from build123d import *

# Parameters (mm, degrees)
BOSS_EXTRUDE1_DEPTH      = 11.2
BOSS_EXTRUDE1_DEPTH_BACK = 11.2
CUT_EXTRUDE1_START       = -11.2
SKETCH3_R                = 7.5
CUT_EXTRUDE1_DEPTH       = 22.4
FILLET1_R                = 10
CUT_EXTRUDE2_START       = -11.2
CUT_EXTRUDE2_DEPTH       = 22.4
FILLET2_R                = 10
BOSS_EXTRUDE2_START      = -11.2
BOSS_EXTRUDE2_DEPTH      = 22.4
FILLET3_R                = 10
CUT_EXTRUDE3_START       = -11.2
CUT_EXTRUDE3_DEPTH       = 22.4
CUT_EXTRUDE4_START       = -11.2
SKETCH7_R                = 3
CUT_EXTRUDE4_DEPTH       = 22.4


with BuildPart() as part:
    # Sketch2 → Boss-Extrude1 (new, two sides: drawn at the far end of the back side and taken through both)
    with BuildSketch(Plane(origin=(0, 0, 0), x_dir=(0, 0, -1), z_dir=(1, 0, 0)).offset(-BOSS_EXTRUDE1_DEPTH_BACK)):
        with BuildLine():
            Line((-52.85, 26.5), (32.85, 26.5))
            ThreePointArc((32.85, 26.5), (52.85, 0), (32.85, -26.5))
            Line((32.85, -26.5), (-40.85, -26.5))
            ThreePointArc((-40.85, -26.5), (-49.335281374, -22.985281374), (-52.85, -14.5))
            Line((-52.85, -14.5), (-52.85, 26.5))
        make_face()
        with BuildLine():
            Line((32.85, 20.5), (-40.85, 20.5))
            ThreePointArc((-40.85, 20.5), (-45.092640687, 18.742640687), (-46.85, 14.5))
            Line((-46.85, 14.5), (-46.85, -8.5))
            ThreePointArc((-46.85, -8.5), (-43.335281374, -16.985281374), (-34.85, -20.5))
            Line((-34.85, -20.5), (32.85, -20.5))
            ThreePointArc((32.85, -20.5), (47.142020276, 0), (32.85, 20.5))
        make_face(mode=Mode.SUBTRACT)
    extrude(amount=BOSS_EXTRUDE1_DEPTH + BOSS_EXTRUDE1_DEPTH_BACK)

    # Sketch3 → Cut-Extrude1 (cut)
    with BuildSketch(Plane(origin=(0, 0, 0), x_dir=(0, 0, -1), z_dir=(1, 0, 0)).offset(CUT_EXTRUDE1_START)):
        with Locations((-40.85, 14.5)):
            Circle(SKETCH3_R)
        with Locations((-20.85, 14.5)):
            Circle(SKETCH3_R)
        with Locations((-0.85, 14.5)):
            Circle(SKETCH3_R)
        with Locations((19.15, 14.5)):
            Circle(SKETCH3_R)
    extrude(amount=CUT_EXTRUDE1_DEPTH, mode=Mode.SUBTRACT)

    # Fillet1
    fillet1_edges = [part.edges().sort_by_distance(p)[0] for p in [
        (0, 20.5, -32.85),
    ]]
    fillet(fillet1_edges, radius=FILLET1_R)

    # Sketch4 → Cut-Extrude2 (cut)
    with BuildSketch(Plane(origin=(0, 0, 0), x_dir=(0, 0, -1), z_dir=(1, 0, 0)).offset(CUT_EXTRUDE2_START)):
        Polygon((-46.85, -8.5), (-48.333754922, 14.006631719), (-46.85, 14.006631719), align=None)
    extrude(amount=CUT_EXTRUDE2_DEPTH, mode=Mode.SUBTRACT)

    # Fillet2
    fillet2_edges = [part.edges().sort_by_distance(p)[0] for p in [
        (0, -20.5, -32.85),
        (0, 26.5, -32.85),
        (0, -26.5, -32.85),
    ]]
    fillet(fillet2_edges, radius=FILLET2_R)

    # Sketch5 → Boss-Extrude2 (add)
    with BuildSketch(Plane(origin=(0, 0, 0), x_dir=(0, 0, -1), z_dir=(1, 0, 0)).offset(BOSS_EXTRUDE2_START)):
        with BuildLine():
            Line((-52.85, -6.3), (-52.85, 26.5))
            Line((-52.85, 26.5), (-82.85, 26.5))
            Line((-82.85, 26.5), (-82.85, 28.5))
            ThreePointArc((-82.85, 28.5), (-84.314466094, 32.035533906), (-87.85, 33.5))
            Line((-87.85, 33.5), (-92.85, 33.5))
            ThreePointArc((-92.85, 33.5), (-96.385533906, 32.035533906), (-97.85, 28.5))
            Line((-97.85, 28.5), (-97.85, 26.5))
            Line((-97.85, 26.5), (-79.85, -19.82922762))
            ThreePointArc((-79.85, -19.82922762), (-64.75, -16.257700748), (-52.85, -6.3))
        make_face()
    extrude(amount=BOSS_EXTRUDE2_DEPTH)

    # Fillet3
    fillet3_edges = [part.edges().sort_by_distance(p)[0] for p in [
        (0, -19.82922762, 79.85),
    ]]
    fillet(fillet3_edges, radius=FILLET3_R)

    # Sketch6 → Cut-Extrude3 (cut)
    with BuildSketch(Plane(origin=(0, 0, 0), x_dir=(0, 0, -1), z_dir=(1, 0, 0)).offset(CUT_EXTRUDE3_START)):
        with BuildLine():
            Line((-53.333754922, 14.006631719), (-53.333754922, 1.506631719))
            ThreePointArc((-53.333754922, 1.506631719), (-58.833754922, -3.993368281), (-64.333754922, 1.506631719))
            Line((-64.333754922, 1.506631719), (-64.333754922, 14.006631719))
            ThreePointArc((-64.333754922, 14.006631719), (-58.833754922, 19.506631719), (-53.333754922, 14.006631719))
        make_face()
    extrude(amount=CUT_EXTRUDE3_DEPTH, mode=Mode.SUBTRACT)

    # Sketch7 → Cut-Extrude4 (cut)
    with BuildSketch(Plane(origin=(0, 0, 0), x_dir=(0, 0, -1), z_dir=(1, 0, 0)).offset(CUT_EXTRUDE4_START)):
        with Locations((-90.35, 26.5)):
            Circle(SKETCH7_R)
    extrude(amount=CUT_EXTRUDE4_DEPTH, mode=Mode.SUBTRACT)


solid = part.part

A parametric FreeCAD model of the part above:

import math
import FreeCAD as App
import Part
import Sketcher
from FreeCAD import Vector


def edges_at(feature, points):
    """Names of the edges that pass closest to the given points."""
    edges = feature.Shape.Edges
    near = lambda p: min(range(len(edges)), key=lambda i: edges[i].distToShape(Part.Vertex(*p))[0])
    return sorted({f"Edge{near(p) + 1}" for p in points})


def add_polygon(sketch, points):
    """Adds a closed chain of lines whose ends are joined by coincident constraints."""
    first, n = sketch.GeometryCount, len(points)
    for a, b in zip(points, points[1:] + points[:1]):
        sketch.addGeometry(Part.LineSegment(App.Vector(*a, 0), App.Vector(*b, 0)), False)
    for i in range(n):
        sketch.addConstraint(Sketcher.Constraint("Coincident", first + i, 2, first + (i + 1) % n, 1))

doc = App.newDocument("Part")
body = doc.addObject("PartDesign::Body", "Body")

sketch1 = doc.addObject("Sketcher::SketchObject", "Sketch")
body.addObject(sketch1)
sketch1.AttachmentSupport = (doc.YZ_Plane, [""])
sketch1.MapMode = "FlatFace"
sketch1.addGeometry(Part.LineSegment(Vector(26, -33, 0), Vector(26, 53, 0)), False)
sketch1.addGeometry(Part.LineSegment(Vector(26, 53, 0), Vector(-14, 53, 0)), False)
sketch1.addGeometry(Part.ArcOfCircle(Part.Circle(Vector(-14, 41, 0), Vector(0, 0, 1), 12), math.radians(90), math.radians(180)), False)
sketch1.addGeometry(Part.LineSegment(Vector(-26, 41, 0), Vector(-26, -33, 0)), False)
sketch1.addGeometry(Part.ArcOfCircle(Part.Circle(Vector(0, -25, 0), Vector(0, 0, 1), 28), math.radians(-164), math.radians(-16)), False)
sketch1.addGeometry(Part.ArcOfCircle(Part.Circle(Vector(0, -25, 0), Vector(0, 0, 1), 22), math.radians(-160), math.radians(-20)), False)
sketch1.addGeometry(Part.LineSegment(Vector(-20, -33, 0), Vector(-20, 35, 0)), False)
sketch1.addGeometry(Part.ArcOfCircle(Part.Circle(Vector(-8, 35, 0), Vector(0, 0, 1), 12), math.radians(90), math.radians(180)), False)
sketch1.addGeometry(Part.LineSegment(Vector(-8, 47, 0), Vector(14, 47, 0)), False)
sketch1.addGeometry(Part.ArcOfCircle(Part.Circle(Vector(14, 41, 0), Vector(0, 0, 1), 6), math.radians(0), math.radians(90)), False)
sketch1.addGeometry(Part.LineSegment(Vector(20, 41, 0), Vector(20, -33, 0)), False)
sketch1.addConstraint(Sketcher.Constraint("Coincident", 0, 2, 1, 1))
sketch1.addConstraint(Sketcher.Constraint("Tangent", 1, 2, 2, 1))
sketch1.addConstraint(Sketcher.Constraint("Tangent", 2, 2, 3, 1))
sketch1.addConstraint(Sketcher.Constraint("Coincident", 3, 2, 4, 1))
sketch1.addConstraint(Sketcher.Constraint("Coincident", 4, 2, 0, 1))
sketch1.addConstraint(Sketcher.Constraint("Coincident", 5, 1, 6, 1))
sketch1.addConstraint(Sketcher.Constraint("Tangent", 6, 2, 7, 2))
sketch1.addConstraint(Sketcher.Constraint("Tangent", 7, 1, 8, 1))
sketch1.addConstraint(Sketcher.Constraint("Tangent", 8, 2, 9, 2))
sketch1.addConstraint(Sketcher.Constraint("Tangent", 9, 1, 10, 1))
sketch1.addConstraint(Sketcher.Constraint("Coincident", 10, 2, 5, 2))
sketch1.addConstraint(Sketcher.Constraint("Vertical", 0))
sketch1.addConstraint(Sketcher.Constraint("Horizontal", 1))
sketch1.addConstraint(Sketcher.Constraint("Vertical", 3))
sketch1.addConstraint(Sketcher.Constraint("Vertical", 6))
sketch1.addConstraint(Sketcher.Constraint("Horizontal", 8))
sketch1.addConstraint(Sketcher.Constraint("Vertical", 10))
sketch1.addConstraint(Sketcher.Constraint("Coincident", 5, 3, 4, 3))
sketch1.addConstraint(Sketcher.Constraint("Equal", 2, 7))
sketch1.addConstraint(Sketcher.Constraint("Symmetric", 2, 3, 9, 3, -2))
sketch1.addConstraint(Sketcher.Constraint("Symmetric", 3, 2, 4, 2, -2))
sketch1.addConstraint(Sketcher.Constraint("Horizontal", 4, 2, 5, 1))
sketch1.addConstraint(Sketcher.Constraint("Horizontal", 5, 1, 10, 2))
sketch1.addConstraint(Sketcher.Constraint("Radius", 2, 12.0))
sketch1.addConstraint(Sketcher.Constraint("Radius", 9, 6.0))
sketch1.addConstraint(Sketcher.Constraint("DistanceX", 1, 2, 1, 1, 41.0))
sketch1.addConstraint(Sketcher.Constraint("DistanceY", 0, 1, 0, 2, 85.7))
sketch1.addConstraint(Sketcher.Constraint("DistanceY", -1, 1, 2, 3, 40.85))
sketch1.addConstraint(Sketcher.Constraint("Radius", 4, 27.55625))
pad1 = doc.addObject("PartDesign::Pad", "Pad")
body.addObject(pad1)
pad1.Profile = sketch1
pad1.Type = "TwoLengths"
pad1.Length = 11.2
pad1.Length2 = 11.2

sketch2 = doc.addObject("Sketcher::SketchObject", "Sketch001")
body.addObject(sketch2)
sketch2.AttachmentSupport = (doc.YZ_Plane, [""])
sketch2.MapMode = "FlatFace"
sketch2.AttachmentOffset = App.Placement(Vector(0, 0, -11.2), App.Rotation())
sketch2.addGeometry(Part.Circle(Vector(14, 41, 0), Vector(0, 0, 1), 8), False)
sketch2.addGeometry(Part.Circle(Vector(14, 21, 0), Vector(0, 0, 1), 8), False)
sketch2.addGeometry(Part.Circle(Vector(14, 1, 0), Vector(0, 0, 1), 8), False)
sketch2.addGeometry(Part.Circle(Vector(14, -19, 0), Vector(0, 0, 1), 8), False)
sketch2.addConstraint(Sketcher.Constraint("Equal", 0, 1))
sketch2.addConstraint(Sketcher.Constraint("Equal", 1, 2))
sketch2.addConstraint(Sketcher.Constraint("Equal", 2, 3))
sketch2.addConstraint(Sketcher.Constraint("Vertical", 0, 3, 1, 3))
sketch2.addConstraint(Sketcher.Constraint("Vertical", 1, 3, 2, 3))
sketch2.addConstraint(Sketcher.Constraint("Vertical", 2, 3, 3, 3))
sketch2.addConstraint(Sketcher.Constraint("Diameter", 0, 15.0))
sketch2.addConstraint(Sketcher.Constraint("DistanceY", 1, 3, 0, 3, 20.0))
sketch2.addConstraint(Sketcher.Constraint("DistanceY", 2, 3, 1, 3, 20.0))
sketch2.addConstraint(Sketcher.Constraint("DistanceY", 3, 3, 2, 3, 20.0))
sketch2.addConstraint(Sketcher.Constraint("DistanceX", -1, 1, 0, 3, 14.5))
sketch2.addConstraint(Sketcher.Constraint("DistanceY", -1, 1, 0, 3, 40.85))
pocket1 = doc.addObject("PartDesign::Pocket", "Pocket")
body.addObject(pocket1)
pocket1.Profile = sketch2
pocket1.Length = 22.4
pocket1.Reversed = True
doc.recompute()

fillet = doc.addObject("PartDesign::Fillet", "Fillet")
body.addObject(fillet)
fillet.Base = (pocket1, edges_at(pocket1, [(0, 20.5, -32.85)]))
fillet.Radius = 10

sketch3 = doc.addObject("Sketcher::SketchObject", "Sketch002")
body.addObject(sketch3)
sketch3.AttachmentSupport = (doc.YZ_Plane, [""])
sketch3.MapMode = "FlatFace"
sketch3.AttachmentOffset = App.Placement(Vector(0, 0, -11.2), App.Rotation())
add_polygon(sketch3, [(14, 48.3), (-8.5, 46.9), (14, 46.9)])
sketch3.addConstraint(Sketcher.Constraint("Horizontal", 1))
sketch3.addConstraint(Sketcher.Constraint("Vertical", 2))
sketch3.addConstraint(Sketcher.Constraint("DistanceX", 0, 2, -1, 1, 8.5))
sketch3.addConstraint(Sketcher.Constraint("DistanceY", -1, 1, 0, 2, 46.85))
sketch3.addConstraint(Sketcher.Constraint("DistanceX", 1, 1, 1, 2, 22.506632))
sketch3.addConstraint(Sketcher.Constraint("DistanceY", 2, 1, 2, 2, 1.483755))
pocket2 = doc.addObject("PartDesign::Pocket", "Pocket001")
body.addObject(pocket2)
pocket2.Profile = sketch3
pocket2.Length = 22.4
pocket2.Reversed = True
doc.recompute()

fillet2 = doc.addObject("PartDesign::Fillet", "Fillet001")
body.addObject(fillet2)
fillet2.Base = (pocket2, edges_at(pocket2, [(0, -20.5, -32.85), (0, 26.5, -32.85), (0, -26.5, -32.85)]))
fillet2.Radius = 10

sketch4 = doc.addObject("Sketcher::SketchObject", "Sketch003")
body.addObject(sketch4)
sketch4.AttachmentSupport = (doc.YZ_Plane, [""])
sketch4.MapMode = "FlatFace"
sketch4.AttachmentOffset = App.Placement(Vector(0, 0, -11.2), App.Rotation())
sketch4.addGeometry(Part.LineSegment(Vector(-6.3, 52.9, 0), Vector(26.5, 52.9, 0)), False)
sketch4.addGeometry(Part.LineSegment(Vector(26.5, 52.9, 0), Vector(26.5, 82.8, 0)), False)
sketch4.addGeometry(Part.LineSegment(Vector(26.5, 82.8, 0), Vector(28.5, 82.8, 0)), False)
sketch4.addGeometry(Part.ArcOfCircle(Part.Circle(Vector(28.5, 87.8, 0), Vector(0, 0, 1), 5), math.radians(-90), math.radians(0)), False)
sketch4.addGeometry(Part.LineSegment(Vector(33.5, 87.8, 0), Vector(33.5, 92.8, 0)), False)
sketch4.addGeometry(Part.ArcOfCircle(Part.Circle(Vector(28.5, 92.8, 0), Vector(0, 0, 1), 5), math.radians(0), math.radians(90)), False)
sketch4.addGeometry(Part.LineSegment(Vector(28.5, 97.8, 0), Vector(26.5, 97.8, 0)), False)
sketch4.addGeometry(Part.LineSegment(Vector(26.5, 97.8, 0), Vector(-19.8, 79.8, 0)), False)
sketch4.addGeometry(Part.ArcOfCircle(Part.Circle(Vector(13.9, 79.9, 0), Vector(0, 0, 1), 33.7), math.radians(-180), math.radians(-127)), False)
sketch4.addConstraint(Sketcher.Constraint("Coincident", 0, 2, 1, 1))
sketch4.addConstraint(Sketcher.Constraint("Coincident", 1, 2, 2, 1))
sketch4.addConstraint(Sketcher.Constraint("Tangent", 2, 2, 3, 1))
sketch4.addConstraint(Sketcher.Constraint("Tangent", 3, 2, 4, 1))
sketch4.addConstraint(Sketcher.Constraint("Tangent", 4, 2, 5, 1))
sketch4.addConstraint(Sketcher.Constraint("Tangent", 5, 2, 6, 1))
sketch4.addConstraint(Sketcher.Constraint("Coincident", 6, 2, 7, 1))
sketch4.addConstraint(Sketcher.Constraint("Coincident", 7, 2, 8, 1))
sketch4.addConstraint(Sketcher.Constraint("Coincident", 8, 2, 0, 1))
sketch4.addConstraint(Sketcher.Constraint("Horizontal", 0))
sketch4.addConstraint(Sketcher.Constraint("Vertical", 1))
sketch4.addConstraint(Sketcher.Constraint("Horizontal", 2))
sketch4.addConstraint(Sketcher.Constraint("Vertical", 4))
sketch4.addConstraint(Sketcher.Constraint("Horizontal", 6))
sketch4.addConstraint(Sketcher.Constraint("Equal", 3, 5))
sketch4.addConstraint(Sketcher.Constraint("Horizontal", 8, 3, 7, 2))
sketch4.addConstraint(Sketcher.Constraint("Vertical", 1, 2, 6, 2))
sketch4.addConstraint(Sketcher.Constraint("Radius", 3, 5.0))
sketch4.addConstraint(Sketcher.Constraint("DistanceX", 2, 1, 2, 2, 2.0))
sketch4.addConstraint(Sketcher.Constraint("DistanceY", 1, 1, 1, 2, 30.0))
sketch4.addConstraint(Sketcher.Constraint("DistanceY", 4, 1, 4, 2, 5.0))
sketch4.addConstraint(Sketcher.Constraint("DistanceX", 0, 1, 0, 2, 32.8))
sketch4.addConstraint(Sketcher.Constraint("DistanceY", 8, 3, 3, 3, 8.0))
sketch4.addConstraint(Sketcher.Constraint("DistanceX", -1, 1, 3, 3, 28.5))
sketch4.addConstraint(Sketcher.Constraint("DistanceY", -1, 1, 3, 3, 87.85))
sketch4.addConstraint(Sketcher.Constraint("Radius", 8, 33.706285))
pad2 = doc.addObject("PartDesign::Pad", "Pad001")
body.addObject(pad2)
pad2.Profile = sketch4
pad2.Length = 22.4
doc.recompute()

fillet3 = doc.addObject("PartDesign::Fillet", "Fillet002")
body.addObject(fillet3)
fillet3.Base = (pad2, edges_at(pad2, [(0, -19.829, 79.85)]))
fillet3.Radius = 10

sketch5 = doc.addObject("Sketcher::SketchObject", "Sketch004")
body.addObject(sketch5)
sketch5.AttachmentSupport = (doc.YZ_Plane, [""])
sketch5.MapMode = "FlatFace"
sketch5.AttachmentOffset = App.Placement(Vector(0, 0, -11.2), App.Rotation())
sketch5.addGeometry(Part.LineSegment(Vector(2, 53, 0), Vector(14, 53, 0)), False)
sketch5.addGeometry(Part.ArcOfCircle(Part.Circle(Vector(14, 59, 0), Vector(0, 0, 1), 6), math.radians(-90), math.radians(90)), False)
sketch5.addGeometry(Part.LineSegment(Vector(14, 64, 0), Vector(2, 64, 0)), False)
sketch5.addGeometry(Part.ArcOfCircle(Part.Circle(Vector(2, 59, 0), Vector(0, 0, 1), 6), math.radians(90), math.radians(270)), False)
sketch5.addConstraint(Sketcher.Constraint("Tangent", 0, 2, 1, 1))
sketch5.addConstraint(Sketcher.Constraint("Tangent", 1, 2, 2, 1))
sketch5.addConstraint(Sketcher.Constraint("Tangent", 2, 2, 3, 1))
sketch5.addConstraint(Sketcher.Constraint("Tangent", 3, 2, 0, 1))
sketch5.addConstraint(Sketcher.Constraint("Horizontal", 0))
sketch5.addConstraint(Sketcher.Constraint("Horizontal", 2))
sketch5.addConstraint(Sketcher.Constraint("Radius", 1, 5.5))
sketch5.addConstraint(Sketcher.Constraint("DistanceX", 0, 1, 0, 2, 12.5))
sketch5.addConstraint(Sketcher.Constraint("DistanceX", -1, 1, 1, 3, 14.006632))
sketch5.addConstraint(Sketcher.Constraint("DistanceY", -1, 1, 1, 3, 58.833755))
pocket3 = doc.addObject("PartDesign::Pocket", "Pocket002")
body.addObject(pocket3)
pocket3.Profile = sketch5
pocket3.Length = 22.4
pocket3.Reversed = True

sketch6 = doc.addObject("Sketcher::SketchObject", "Sketch005")
body.addObject(sketch6)
sketch6.AttachmentSupport = (doc.YZ_Plane, [""])
sketch6.MapMode = "FlatFace"
sketch6.AttachmentOffset = App.Placement(Vector(0, 0, -11.2), App.Rotation())
sketch6.addGeometry(Part.Circle(Vector(26.5, 90.3, 0), Vector(0, 0, 1), 3), False)
sketch6.addConstraint(Sketcher.Constraint("Diameter", 0, 6.0))
sketch6.addConstraint(Sketcher.Constraint("DistanceX", -1, 1, 0, 3, 26.5))
sketch6.addConstraint(Sketcher.Constraint("DistanceY", -1, 1, 0, 3, 90.35))
pocket4 = doc.addObject("PartDesign::Pocket", "Pocket003")
body.addObject(pocket4)
pocket4.Profile = sketch6
pocket4.Length = 22.4
pocket4.Reversed = True

doc.recompute()
